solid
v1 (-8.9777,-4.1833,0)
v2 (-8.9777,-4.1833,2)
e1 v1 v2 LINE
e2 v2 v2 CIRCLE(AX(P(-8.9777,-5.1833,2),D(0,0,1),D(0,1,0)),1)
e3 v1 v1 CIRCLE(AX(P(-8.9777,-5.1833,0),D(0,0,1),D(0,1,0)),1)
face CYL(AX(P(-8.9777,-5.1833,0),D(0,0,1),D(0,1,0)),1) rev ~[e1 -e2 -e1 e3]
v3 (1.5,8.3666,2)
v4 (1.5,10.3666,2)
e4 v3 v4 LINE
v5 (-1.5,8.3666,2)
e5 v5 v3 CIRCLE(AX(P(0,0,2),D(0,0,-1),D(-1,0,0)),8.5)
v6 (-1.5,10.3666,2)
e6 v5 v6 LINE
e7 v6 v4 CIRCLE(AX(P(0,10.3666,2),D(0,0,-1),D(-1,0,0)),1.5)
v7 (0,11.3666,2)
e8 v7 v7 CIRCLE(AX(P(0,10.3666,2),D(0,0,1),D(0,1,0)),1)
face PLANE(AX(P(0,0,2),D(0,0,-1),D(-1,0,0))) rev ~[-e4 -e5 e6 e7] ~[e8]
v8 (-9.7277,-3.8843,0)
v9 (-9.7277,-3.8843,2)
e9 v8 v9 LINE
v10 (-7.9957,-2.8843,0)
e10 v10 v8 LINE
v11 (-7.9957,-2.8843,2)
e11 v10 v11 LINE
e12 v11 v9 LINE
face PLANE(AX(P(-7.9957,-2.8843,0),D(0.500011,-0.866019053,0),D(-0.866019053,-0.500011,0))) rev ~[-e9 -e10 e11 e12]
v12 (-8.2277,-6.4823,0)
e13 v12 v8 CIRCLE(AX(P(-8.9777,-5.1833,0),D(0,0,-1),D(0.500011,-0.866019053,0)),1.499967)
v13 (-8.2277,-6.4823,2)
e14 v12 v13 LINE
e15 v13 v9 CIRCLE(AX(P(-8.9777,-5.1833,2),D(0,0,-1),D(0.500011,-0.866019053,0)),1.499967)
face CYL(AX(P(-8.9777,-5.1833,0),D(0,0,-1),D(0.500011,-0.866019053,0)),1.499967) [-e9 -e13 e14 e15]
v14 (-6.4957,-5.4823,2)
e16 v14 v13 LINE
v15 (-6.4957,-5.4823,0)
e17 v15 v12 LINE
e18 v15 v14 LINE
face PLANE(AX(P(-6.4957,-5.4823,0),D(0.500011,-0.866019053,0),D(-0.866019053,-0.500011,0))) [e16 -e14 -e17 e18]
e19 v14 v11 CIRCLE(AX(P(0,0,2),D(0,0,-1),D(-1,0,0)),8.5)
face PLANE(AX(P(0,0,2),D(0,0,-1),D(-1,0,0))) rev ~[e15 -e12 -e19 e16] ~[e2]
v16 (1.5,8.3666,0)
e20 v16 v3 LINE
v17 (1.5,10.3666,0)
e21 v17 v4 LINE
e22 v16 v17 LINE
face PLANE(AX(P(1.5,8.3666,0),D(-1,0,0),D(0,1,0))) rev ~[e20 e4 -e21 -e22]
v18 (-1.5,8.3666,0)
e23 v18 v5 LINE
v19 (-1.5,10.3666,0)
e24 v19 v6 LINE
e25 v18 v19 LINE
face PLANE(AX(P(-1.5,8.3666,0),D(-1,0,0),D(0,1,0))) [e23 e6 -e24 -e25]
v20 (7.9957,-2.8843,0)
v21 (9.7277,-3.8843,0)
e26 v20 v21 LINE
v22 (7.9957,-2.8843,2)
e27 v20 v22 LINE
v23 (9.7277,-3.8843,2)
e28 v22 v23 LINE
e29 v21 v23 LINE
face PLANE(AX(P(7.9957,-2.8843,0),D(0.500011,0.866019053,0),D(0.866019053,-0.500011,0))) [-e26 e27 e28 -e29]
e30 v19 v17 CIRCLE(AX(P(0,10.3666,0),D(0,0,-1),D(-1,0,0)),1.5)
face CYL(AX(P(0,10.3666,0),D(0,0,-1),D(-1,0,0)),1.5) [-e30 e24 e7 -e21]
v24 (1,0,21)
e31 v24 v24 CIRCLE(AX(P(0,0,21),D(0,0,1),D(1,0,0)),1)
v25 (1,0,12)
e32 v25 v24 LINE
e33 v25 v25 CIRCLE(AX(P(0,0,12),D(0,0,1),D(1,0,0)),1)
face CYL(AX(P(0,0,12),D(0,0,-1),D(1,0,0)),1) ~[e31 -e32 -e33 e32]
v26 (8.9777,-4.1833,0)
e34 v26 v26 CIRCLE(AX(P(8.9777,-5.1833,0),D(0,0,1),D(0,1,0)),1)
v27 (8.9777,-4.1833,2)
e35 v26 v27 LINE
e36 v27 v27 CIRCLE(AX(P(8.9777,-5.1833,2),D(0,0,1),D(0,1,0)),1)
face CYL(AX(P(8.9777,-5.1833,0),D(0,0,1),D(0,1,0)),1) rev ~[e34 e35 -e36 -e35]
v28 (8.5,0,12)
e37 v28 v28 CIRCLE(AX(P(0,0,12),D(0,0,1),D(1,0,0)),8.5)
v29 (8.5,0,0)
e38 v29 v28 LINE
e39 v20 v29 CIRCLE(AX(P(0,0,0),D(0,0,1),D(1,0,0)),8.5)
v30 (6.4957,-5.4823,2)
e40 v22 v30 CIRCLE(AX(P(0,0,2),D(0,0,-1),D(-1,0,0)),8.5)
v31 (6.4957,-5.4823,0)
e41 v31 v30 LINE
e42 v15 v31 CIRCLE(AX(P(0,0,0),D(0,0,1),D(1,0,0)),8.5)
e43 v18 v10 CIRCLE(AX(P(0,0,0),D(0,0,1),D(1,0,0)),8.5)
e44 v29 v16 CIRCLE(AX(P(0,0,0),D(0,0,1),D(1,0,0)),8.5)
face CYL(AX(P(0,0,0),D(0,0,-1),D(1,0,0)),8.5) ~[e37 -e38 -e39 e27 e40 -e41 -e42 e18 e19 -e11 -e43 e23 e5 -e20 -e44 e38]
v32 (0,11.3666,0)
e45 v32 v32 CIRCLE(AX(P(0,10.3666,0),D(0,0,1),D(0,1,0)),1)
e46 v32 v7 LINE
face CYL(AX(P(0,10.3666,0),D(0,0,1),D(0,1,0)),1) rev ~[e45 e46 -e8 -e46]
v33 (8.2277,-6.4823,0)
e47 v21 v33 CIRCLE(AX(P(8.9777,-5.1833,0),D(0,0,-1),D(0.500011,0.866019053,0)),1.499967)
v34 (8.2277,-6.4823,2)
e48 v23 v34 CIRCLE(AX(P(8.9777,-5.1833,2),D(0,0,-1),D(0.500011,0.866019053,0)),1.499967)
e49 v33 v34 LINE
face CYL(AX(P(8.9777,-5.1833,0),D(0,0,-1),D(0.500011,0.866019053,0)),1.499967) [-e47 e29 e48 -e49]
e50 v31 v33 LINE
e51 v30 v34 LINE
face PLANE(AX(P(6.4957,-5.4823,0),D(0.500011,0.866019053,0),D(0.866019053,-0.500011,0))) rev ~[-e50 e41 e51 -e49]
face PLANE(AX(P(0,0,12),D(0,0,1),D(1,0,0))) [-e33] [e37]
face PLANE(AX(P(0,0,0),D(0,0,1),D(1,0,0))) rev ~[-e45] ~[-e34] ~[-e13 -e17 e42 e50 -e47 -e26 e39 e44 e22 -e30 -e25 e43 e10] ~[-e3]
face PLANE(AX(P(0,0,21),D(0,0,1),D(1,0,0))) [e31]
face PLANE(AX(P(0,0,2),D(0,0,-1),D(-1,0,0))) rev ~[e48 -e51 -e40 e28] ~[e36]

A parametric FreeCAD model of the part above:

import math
import FreeCAD as App
import Part
import Sketcher
from FreeCAD import Vector
Q = App.Units.Quantity

doc = App.newDocument("Part")
params = doc.addObject("Spreadsheet::Sheet", "Params")
for row, (alias, value) in enumerate([
    ("sketch1_diameter", "17 mm"),
    ("pad1_length", "12 mm"),
    ("sketch2_radius", "1.5 mm"),
    ("sketch2_height", "2 mm"),
    ("sketch2_length", "2 mm"),
    ("sketch2_radius2", "8.5 mm"),
    ("pad2_length", "2 mm"),
    ("sketch3_diameter", "2 mm"),
    ("hole_diameter", "2 mm"),
    ("sketch4_diameter", "2 mm"),
    ("pad3_length", "9 mm"),
], start=1):
    params.set(f"A{row}", alias)
    params.set(f"B{row}", "=" + value)
    params.setAlias(f"B{row}", alias)

body = doc.addObject("PartDesign::Body", "Body")

# Sketch on XY plane
sketch1 = doc.addObject("Sketcher::SketchObject", "Sketch")
body.addObject(sketch1)
sketch1.AttachmentSupport = (doc.XY_Plane, [""])
sketch1.MapMode = "FlatFace"
sketch1.addGeometry(Part.Circle(Vector(0, 0, 0), Vector(0, 0, 1), 8.5), False)
sketch1.addConstraint(Sketcher.Constraint("Coincident", 0, 3, -1, 1))
sketch1.addConstraint(Sketcher.Constraint("Diameter", 0, Q("17 mm")))
sketch1.setExpression("Constraints[1]", "Params.sketch1_diameter")
pad1 = doc.addObject("PartDesign::Pad", "Pad")
body.addObject(pad1)
pad1.Profile = sketch1
pad1.setExpression("Length", "Params.pad1_length")

# Sketch on XY plane
sketch2 = doc.addObject("Sketcher::SketchObject", "Sketch001")
body.addObject(sketch2)
sketch2.AttachmentSupport = (doc.XY_Plane, [""])
sketch2.MapMode = "FlatFace"
sketch2.addGeometry(Part.ArcOfCircle(Part.Circle(Vector(0, 0, 0), Vector(0, 0, 1), 8.5), math.radians(79.835751), math.radians(100.164249)), False)
sketch2.addGeometry(Part.LineSegment(Vector(-1.5, 8.3666, 0), Vector(-1.5, 10.3666, 0)), False)
sketch2.addGeometry(Part.ArcOfCircle(Part.Circle(Vector(0, 10.3666, 0), Vector(0, 0, 1), 1.5), math.radians(0), math.radians(180)), False)
sketch2.addGeometry(Part.LineSegment(Vector(1.5, 10.3666, 0), Vector(1.5, 8.3666, 0)), False)
sketch2.addGeometry(Part.LineSegment(Vector(-9.7277, -3.8843, 0), Vector(-7.9957, -2.8843, 0)), False)
sketch2.addGeometry(Part.ArcOfCircle(Part.Circle(Vector(0, 0, 0), Vector(0, 0, 1), 8.5), math.radians(-160.164034), math.radians(-139.835999)), False)
sketch2.addGeometry(Part.LineSegment(Vector(-6.4957, -5.4823, 0), Vector(-8.2277, -6.4823, 0)), False)
sketch2.addGeometry(Part.ArcOfCircle(Part.Circle(Vector(-8.9777, -5.1833, 0), Vector(0, 0, 1), 1.499967), math.radians(120.000728), math.radians(300.000728)), False)
sketch2.addGeometry(Part.ArcOfCircle(Part.Circle(Vector(0, 0, 0), Vector(0, 0, 1), 8.5), math.radians(-40.164001), math.radians(-19.835966)), False)
sketch2.addGeometry(Part.LineSegment(Vector(7.9957, -2.8843, 0), Vector(9.7277, -3.8843, 0)), False)
sketch2.addGeometry(Part.ArcOfCircle(Part.Circle(Vector(8.9777, -5.1833, 0), Vector(0, 0, 1), 1.499967), math.radians(-120.000728), math.radians(59.999272)), False)
sketch2.addGeometry(Part.LineSegment(Vector(8.2277, -6.4823, 0), Vector(6.4957, -5.4823, 0)), False)
sketch2.addConstraint(Sketcher.Constraint("Coincident", 0, 2, 1, 1))
sketch2.addConstraint(Sketcher.Constraint("Tangent", 1, 2, 2, 2))
sketch2.addConstraint(Sketcher.Constraint("Tangent", 2, 1, 3, 1))
sketch2.addConstraint(Sketcher.Constraint("Coincident", 3, 2, 0, 1))
sketch2.addConstraint(Sketcher.Constraint("Coincident", 4, 2, 5, 1))
sketch2.addConstraint(Sketcher.Constraint("Coincident", 5, 2, 6, 1))
sketch2.addConstraint(Sketcher.Constraint("Tangent", 6, 2, 7, 2))
sketch2.addConstraint(Sketcher.Constraint("Tangent", 7, 1, 4, 1))
sketch2.addConstraint(Sketcher.Constraint("Coincident", 8, 2, 9, 1))
sketch2.addConstraint(Sketcher.Constraint("Tangent", 9, 2, 10, 2))
sketch2.addConstraint(Sketcher.Constraint("Tangent", 10, 1, 11, 1))
sketch2.addConstraint(Sketcher.Constraint("Coincident", 11, 2, 8, 1))
sketch2.addConstraint(Sketcher.Constraint("Vertical", 1))
sketch2.addConstraint(Sketcher.Constraint("Vertical", 3))
sketch2.addConstraint(Sketcher.Constraint("Coincident", 0, 3, -1, 1))
sketch2.addConstraint(Sketcher.Constraint("Coincident", 5, 3, -1, 1))
sketch2.addConstraint(Sketcher.Constraint("Coincident", 8, 3, -1, 1))
sketch2.addConstraint(Sketcher.Constraint("Equal", 0, 5))
sketch2.addConstraint(Sketcher.Constraint("Equal", 2, 7))
sketch2.addConstraint(Sketcher.Constraint("Equal", 5, 8))
sketch2.addConstraint(Sketcher.Constraint("Equal", 7, 10))
sketch2.addConstraint(Sketcher.Constraint("Symmetric", 7, 3, 10, 3, -2))
sketch2.addConstraint(Sketcher.Constraint("PointOnObject", 2, 3, -2))
sketch2.addConstraint(Sketcher.Constraint("Parallel", 4, 6))
sketch2.addConstraint(Sketcher.Constraint("Parallel", 9, 11))
sketch2.addConstraint(Sketcher.Constraint("Horizontal", 4, 2, 8, 2))
sketch2.addConstraint(Sketcher.Constraint("Equal", 4, 6))
sketch2.addConstraint(Sketcher.Constraint("Radius", 2, Q("1.5 mm")))
sketch2.addConstraint(Sketcher.Constraint("DistanceY", 1, 1, 1, 2, Q("2 mm")))
sketch2.addConstraint(Sketcher.Constraint("Distance", 4, Q("2 mm")))
sketch2.addConstraint(Sketcher.Constraint("Radius", 0, Q("8.5 mm")))
sketch2.addConstraint(Sketcher.Constraint("DistanceX", 4, 2, 5, 2, Q("1.5 mm")))
sketch2.setExpression("Constraints[27]", "Params.sketch2_radius")
sketch2.setExpression("Constraints[28]", "Params.sketch2_height")
sketch2.setExpression("Constraints[29]", "Params.sketch2_length")
sketch2.setExpression("Constraints[30]", "Params.sketch2_radius2")
pad2 = doc.addObject("PartDesign::Pad", "Pad001")
body.addObject(pad2)
pad2.Profile = sketch2
pad2.setExpression("Length", "Params.pad2_length")

# Sketch on XY plane
sketch3 = doc.addObject("Sketcher::SketchObject", "Sketch002")
body.addObject(sketch3)
sketch3.AttachmentSupport = (doc.XY_Plane, [""])
sketch3.MapMode = "FlatFace"
sketch3.addGeometry(Part.Circle(Vector(-8.9777, -5.1833, 0), Vector(0, 0, 1), 1), False)
sketch3.addGeometry(Part.Circle(Vector(8.9777, -5.1833, 0), Vector(0, 0, 1), 1), False)
sketch3.addGeometry(Part.Circle(Vector(0, 10.3666, 0), Vector(0, 0, 1), 1), False)
sketch3.addConstraint(Sketcher.Constraint("Equal", 0, 1))
sketch3.addConstraint(Sketcher.Constraint("Equal", 1, 2))
sketch3.addConstraint(Sketcher.Constraint("Symmetric", 0, 3, 1, 3, -2))
sketch3.addConstraint(Sketcher.Constraint("PointOnObject", 2, 3, -2))
sketch3.addConstraint(Sketcher.Constraint("Diameter", 0, Q("2 mm")))
sketch3.addConstraint(Sketcher.Constraint("DistanceY", 0, 3, 2, 3, Q("15.55 mm")))
sketch3.addConstraint(Sketcher.Constraint("DistanceX", 0, 3, -1, 1, Q("8.9777 mm")))
sketch3.addConstraint(Sketcher.Constraint("DistanceY", 0, 3, -1, 1, Q("5.1833 mm")))
sketch3.setExpression("Constraints[4]", "Params.sketch3_diameter")
doc.recompute()
hole = doc.addObject("PartDesign::Hole", "Hole")
body.addObject(hole)
hole.Profile = sketch3
hole.ThreadType = "None"
hole.setExpression("Diameter", "Params.hole_diameter")
hole.DepthType = "ThroughAll"
hole.Reversed = True

# Sketch on XY plane
sketch4 = doc.addObject("Sketcher::SketchObject", "Sketch003")
body.addObject(sketch4)
sketch4.AttachmentSupport = (doc.XY_Plane, [""])
sketch4.MapMode = "FlatFace"
sketch4.AttachmentOffset = App.Placement(Vector(0, 0, 12), App.Rotation())
sketch4.addGeometry(Part.Circle(Vector(0, 0, 0), Vector(0, 0, 1), 1), False)
sketch4.addConstraint(Sketcher.Constraint("Coincident", 0, 3, -1, 1))
sketch4.addConstraint(Sketcher.Constraint("Diameter", 0, Q("2 mm")))
sketch4.setExpression("Constraints[1]", "Params.sketch4_diameter")
pad3 = doc.addObject("PartDesign::Pad", "Pad002")
body.addObject(pad3)
pad3.Profile = sketch4
pad3.setExpression("Length", "Params.pad3_length")

doc.recompute()
